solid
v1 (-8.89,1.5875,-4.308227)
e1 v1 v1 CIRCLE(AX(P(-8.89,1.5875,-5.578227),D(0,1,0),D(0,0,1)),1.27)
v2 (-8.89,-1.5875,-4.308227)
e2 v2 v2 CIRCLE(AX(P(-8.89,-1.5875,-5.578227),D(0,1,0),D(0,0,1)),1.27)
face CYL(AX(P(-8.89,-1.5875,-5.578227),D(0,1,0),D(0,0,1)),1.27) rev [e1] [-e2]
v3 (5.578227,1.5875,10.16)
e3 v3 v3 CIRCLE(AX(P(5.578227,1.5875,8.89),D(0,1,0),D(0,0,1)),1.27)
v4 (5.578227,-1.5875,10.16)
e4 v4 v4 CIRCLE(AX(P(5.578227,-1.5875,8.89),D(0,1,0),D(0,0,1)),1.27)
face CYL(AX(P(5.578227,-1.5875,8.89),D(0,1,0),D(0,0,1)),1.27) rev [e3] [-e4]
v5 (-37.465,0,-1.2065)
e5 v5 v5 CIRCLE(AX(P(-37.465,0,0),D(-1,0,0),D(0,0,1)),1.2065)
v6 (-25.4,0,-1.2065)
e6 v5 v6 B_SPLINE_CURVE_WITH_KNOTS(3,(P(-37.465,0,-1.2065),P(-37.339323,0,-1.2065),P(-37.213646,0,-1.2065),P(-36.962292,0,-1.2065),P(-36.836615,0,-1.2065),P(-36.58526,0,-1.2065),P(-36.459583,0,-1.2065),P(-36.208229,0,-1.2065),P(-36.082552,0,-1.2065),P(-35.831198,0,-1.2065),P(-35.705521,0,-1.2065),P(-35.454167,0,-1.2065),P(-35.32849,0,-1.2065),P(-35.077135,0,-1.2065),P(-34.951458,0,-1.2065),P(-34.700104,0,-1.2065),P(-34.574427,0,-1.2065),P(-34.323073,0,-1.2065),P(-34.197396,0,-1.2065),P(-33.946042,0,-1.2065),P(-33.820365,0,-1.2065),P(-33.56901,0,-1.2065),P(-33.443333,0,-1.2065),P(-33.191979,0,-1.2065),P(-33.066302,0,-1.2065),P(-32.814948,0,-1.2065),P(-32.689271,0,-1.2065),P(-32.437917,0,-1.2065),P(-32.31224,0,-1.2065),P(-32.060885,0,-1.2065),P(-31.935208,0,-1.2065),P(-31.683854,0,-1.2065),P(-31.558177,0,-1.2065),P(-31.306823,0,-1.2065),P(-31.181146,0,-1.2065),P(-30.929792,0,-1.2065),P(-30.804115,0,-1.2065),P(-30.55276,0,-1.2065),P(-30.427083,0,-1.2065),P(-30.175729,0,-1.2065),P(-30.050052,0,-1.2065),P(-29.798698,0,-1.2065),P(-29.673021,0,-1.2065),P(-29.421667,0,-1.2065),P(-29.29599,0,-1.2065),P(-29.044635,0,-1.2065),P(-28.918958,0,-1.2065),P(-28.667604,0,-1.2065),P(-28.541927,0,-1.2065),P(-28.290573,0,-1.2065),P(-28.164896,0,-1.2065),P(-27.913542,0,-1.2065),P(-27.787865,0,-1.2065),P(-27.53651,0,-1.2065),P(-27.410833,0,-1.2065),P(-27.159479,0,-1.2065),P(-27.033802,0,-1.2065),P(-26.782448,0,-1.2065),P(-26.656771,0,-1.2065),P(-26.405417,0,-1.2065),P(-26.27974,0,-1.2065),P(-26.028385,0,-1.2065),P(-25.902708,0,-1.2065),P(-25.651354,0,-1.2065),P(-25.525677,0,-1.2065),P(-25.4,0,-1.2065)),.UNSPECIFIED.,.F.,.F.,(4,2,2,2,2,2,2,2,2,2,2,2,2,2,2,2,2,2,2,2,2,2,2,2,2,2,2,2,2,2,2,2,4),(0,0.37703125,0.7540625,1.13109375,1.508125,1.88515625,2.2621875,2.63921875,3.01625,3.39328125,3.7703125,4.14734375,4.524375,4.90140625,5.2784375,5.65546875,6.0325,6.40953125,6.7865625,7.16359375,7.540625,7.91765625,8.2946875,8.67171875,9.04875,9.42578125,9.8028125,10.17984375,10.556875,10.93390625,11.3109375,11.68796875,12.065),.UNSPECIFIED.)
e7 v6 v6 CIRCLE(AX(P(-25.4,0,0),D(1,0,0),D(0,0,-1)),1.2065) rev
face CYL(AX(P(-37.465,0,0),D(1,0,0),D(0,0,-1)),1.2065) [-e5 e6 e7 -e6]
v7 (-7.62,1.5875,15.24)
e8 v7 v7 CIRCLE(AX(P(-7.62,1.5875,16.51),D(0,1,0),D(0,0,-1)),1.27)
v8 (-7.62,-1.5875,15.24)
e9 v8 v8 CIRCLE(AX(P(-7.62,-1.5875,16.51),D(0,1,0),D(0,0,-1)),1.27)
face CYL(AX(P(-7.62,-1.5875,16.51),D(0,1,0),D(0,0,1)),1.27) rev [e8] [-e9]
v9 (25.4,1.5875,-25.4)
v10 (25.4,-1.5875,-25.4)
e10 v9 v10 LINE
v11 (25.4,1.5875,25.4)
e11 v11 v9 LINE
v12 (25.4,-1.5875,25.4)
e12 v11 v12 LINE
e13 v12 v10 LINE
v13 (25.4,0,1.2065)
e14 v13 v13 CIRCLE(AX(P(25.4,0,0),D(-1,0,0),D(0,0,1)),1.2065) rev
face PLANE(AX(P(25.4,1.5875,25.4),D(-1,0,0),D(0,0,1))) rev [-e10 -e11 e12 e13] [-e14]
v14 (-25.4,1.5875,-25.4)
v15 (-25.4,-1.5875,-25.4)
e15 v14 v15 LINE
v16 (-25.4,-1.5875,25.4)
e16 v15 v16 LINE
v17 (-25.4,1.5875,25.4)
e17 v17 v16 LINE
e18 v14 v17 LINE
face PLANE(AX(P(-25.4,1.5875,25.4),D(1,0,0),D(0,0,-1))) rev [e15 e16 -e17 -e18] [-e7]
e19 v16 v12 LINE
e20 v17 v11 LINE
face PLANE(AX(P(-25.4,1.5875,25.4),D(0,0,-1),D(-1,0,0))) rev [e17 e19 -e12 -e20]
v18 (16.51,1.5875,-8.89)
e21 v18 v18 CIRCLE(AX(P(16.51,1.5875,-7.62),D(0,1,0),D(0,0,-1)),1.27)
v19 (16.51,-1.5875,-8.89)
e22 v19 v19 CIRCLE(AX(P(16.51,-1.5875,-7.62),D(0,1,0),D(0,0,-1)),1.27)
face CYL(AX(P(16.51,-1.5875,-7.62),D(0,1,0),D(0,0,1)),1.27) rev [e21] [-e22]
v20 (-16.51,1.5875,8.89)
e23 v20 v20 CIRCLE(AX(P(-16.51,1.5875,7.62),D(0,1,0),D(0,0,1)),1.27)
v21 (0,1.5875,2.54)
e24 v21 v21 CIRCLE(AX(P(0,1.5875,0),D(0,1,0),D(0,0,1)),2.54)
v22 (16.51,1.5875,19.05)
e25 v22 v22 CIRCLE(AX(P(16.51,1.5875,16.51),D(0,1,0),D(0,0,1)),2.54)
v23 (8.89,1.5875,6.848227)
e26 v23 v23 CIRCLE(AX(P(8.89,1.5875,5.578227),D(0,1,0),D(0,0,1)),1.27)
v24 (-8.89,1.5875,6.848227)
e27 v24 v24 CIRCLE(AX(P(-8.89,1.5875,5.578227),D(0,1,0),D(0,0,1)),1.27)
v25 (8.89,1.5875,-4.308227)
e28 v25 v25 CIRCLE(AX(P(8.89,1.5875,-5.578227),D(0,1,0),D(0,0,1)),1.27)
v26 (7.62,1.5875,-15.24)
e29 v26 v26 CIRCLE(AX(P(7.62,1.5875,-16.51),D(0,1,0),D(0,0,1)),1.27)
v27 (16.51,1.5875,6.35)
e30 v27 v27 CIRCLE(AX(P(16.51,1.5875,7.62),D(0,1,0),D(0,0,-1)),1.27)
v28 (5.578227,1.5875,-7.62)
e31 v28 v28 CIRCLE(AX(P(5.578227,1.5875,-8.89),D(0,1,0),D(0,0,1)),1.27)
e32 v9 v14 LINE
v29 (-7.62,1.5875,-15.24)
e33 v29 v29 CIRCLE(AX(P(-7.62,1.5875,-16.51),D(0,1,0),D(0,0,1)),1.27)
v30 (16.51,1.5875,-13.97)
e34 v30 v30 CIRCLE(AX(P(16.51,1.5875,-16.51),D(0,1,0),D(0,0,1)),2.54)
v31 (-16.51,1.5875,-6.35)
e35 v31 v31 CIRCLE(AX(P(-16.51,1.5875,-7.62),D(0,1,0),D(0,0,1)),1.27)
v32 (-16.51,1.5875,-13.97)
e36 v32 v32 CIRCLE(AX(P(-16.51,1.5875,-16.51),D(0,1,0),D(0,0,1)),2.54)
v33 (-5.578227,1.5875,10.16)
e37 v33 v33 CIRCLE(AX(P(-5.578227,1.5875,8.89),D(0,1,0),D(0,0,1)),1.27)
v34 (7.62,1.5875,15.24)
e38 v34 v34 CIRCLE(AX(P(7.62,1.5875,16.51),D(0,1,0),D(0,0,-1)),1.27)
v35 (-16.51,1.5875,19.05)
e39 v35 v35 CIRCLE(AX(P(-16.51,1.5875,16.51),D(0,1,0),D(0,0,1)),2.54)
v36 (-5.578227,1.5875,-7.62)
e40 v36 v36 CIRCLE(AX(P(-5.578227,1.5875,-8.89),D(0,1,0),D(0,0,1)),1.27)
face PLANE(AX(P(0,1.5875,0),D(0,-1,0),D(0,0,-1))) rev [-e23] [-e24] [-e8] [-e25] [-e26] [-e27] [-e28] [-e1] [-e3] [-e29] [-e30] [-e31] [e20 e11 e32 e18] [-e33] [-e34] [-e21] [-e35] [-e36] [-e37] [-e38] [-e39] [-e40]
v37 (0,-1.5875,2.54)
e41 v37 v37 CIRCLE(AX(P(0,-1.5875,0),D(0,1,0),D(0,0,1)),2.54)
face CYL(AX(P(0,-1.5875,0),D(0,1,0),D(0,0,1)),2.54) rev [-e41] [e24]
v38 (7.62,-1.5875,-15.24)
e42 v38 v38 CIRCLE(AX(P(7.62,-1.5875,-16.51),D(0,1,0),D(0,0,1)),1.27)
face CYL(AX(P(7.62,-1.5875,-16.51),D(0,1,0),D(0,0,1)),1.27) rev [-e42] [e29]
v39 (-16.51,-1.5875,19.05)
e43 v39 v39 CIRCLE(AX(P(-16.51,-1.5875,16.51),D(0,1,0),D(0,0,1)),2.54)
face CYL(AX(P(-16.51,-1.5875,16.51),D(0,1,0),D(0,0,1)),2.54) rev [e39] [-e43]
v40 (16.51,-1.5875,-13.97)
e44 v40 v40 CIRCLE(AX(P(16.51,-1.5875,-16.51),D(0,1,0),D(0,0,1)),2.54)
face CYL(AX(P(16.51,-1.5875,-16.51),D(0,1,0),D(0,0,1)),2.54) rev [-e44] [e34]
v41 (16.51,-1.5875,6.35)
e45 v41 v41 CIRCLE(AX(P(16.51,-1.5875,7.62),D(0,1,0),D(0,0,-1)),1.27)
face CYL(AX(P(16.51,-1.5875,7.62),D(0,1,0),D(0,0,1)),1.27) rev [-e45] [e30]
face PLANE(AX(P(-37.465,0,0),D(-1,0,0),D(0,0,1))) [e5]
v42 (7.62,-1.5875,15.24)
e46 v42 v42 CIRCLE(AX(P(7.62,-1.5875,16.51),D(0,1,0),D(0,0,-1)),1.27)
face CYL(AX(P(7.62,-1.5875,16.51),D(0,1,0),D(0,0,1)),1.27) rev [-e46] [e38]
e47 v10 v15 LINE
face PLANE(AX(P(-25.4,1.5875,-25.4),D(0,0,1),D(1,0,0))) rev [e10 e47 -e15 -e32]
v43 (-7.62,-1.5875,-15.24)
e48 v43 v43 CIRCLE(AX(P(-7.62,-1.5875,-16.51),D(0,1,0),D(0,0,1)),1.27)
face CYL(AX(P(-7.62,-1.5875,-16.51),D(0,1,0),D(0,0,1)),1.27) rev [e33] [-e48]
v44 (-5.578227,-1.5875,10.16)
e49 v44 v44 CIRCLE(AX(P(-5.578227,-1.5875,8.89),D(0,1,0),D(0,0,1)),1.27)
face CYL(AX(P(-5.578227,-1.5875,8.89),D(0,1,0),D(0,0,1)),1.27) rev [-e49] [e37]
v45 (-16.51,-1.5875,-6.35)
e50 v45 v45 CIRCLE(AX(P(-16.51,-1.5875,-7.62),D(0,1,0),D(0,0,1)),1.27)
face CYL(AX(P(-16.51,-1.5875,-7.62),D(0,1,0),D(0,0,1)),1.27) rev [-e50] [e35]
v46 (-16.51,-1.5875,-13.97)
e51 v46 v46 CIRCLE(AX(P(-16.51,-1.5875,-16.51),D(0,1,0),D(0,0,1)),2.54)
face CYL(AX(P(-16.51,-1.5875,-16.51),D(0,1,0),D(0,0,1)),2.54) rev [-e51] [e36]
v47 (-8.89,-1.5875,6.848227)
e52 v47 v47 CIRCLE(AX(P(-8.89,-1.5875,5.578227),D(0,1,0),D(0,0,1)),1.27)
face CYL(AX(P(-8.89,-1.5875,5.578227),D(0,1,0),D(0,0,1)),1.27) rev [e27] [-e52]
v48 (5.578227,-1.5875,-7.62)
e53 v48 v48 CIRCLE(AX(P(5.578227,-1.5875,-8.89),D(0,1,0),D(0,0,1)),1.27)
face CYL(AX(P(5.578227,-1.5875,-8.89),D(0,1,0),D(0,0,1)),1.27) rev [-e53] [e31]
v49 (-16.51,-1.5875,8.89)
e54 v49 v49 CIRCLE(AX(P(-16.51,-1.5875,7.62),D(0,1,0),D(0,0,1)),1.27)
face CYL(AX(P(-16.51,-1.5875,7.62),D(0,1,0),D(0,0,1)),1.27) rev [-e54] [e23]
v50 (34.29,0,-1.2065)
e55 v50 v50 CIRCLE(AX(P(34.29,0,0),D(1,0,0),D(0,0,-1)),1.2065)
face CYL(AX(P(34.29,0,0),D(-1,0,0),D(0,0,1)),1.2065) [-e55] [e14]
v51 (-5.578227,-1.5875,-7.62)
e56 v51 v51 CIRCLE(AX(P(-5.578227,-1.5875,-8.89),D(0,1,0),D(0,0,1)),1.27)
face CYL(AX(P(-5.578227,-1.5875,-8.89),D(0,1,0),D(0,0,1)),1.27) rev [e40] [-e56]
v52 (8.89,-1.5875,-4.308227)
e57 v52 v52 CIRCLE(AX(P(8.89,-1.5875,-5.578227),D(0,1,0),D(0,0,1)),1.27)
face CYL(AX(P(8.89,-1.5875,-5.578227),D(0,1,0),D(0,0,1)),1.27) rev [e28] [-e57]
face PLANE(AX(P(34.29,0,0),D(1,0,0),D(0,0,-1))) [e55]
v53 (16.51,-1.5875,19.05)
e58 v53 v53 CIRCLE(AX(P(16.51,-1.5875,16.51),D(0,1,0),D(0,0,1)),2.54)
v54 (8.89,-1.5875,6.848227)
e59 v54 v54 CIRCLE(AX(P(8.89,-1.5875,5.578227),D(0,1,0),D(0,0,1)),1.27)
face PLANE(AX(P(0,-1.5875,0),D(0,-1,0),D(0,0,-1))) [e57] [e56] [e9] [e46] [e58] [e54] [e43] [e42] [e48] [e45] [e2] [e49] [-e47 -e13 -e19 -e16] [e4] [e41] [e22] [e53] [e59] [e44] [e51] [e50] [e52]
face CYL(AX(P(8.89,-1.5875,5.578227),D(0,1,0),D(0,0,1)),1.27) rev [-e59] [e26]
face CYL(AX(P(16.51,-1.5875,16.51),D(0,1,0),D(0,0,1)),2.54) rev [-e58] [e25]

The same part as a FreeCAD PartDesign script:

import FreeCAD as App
import Part
import Sketcher
from FreeCAD import Vector
Q = App.Units.Quantity


def add_polygon(sketch, points):
    """Adds a closed chain of lines whose ends are joined by coincident constraints."""
    first, n = sketch.GeometryCount, len(points)
    for a, b in zip(points, points[1:] + points[:1]):
        sketch.addGeometry(Part.LineSegment(App.Vector(*a, 0), App.Vector(*b, 0)), False)
    for i in range(n):
        sketch.addConstraint(Sketcher.Constraint("Coincident", first + i, 2, first + (i + 1) % n, 1))

doc = App.newDocument("Part")
body = doc.addObject("PartDesign::Body", "Body")

# Sketch on XZ plane
sketch1 = body.newObject("Sketcher::SketchObject", "Sketch")
sketch1.AttachmentSupport = (doc.getObject("XZ_Plane"), [""])
sketch1.MapMode = "FlatFace"
add_polygon(sketch1, [(-25, -25), (-25, 25), (25, 25), (25, -25)])  # lines 0-3
sketch1.addConstraint(Sketcher.Constraint("Vertical", 0))
sketch1.addConstraint(Sketcher.Constraint("Horizontal", 1))
sketch1.addConstraint(Sketcher.Constraint("Vertical", 2))
sketch1.addConstraint(Sketcher.Constraint("Horizontal", 3))
sketch1.addConstraint(Sketcher.Constraint("Symmetric", 0, 2, 2, 2, -1, 1))
sketch1.addConstraint(Sketcher.Constraint("Equal", 3, 0))
sketch1.addConstraint(Sketcher.Constraint("DistanceX", 1, 1, 1, 2, Q("2 in")))
pad1 = body.newObject("PartDesign::Pad", "Pad")
pad1.Profile = sketch1
pad1.Length = Q("0.125 in")
pad1.Midplane = True

# Sketch on YZ plane
sketch2 = body.newObject("Sketcher::SketchObject", "Sketch001")
sketch2.AttachmentSupport = (doc.getObject("YZ_Plane"), [""])
sketch2.MapMode = "FlatFace"
sketch2.AttachmentOffset = App.Placement(Vector(0, 0, 1 * 25.4), App.Rotation())
sketch2.addGeometry(Part.Circle(Vector(0, 0, 0), Vector(0, 0, 1), 1.2), False)
sketch2.addConstraint(Sketcher.Constraint("Coincident", 0, 3, -1, 1))
sketch2.addConstraint(Sketcher.Constraint("Diameter", 0, Q("0.095 in")))
pad2 = body.newObject("PartDesign::Pad", "Pad001")
pad2.Profile = sketch2
pad2.Length = Q("0.35 in")

# Sketch on XZ plane
sketch3 = body.newObject("Sketcher::SketchObject", "Sketch002")
sketch3.AttachmentSupport = (doc.getObject("XZ_Plane"), [""])
sketch3.MapMode = "FlatFace"
sketch3.AttachmentOffset = App.Placement(Vector(0, 0, -0.0625 * 25.4), App.Rotation())
sketch3.addGeometry(Part.Circle(Vector(0, 0, 0), Vector(0, 0, 1), 2.5), False)
sketch3.addGeometry(Part.Circle(Vector(-16.5, -16.5, 0), Vector(0, 0, 1), 2.5), False)
sketch3.addGeometry(Part.Circle(Vector(16.5, -16.5, 0), Vector(0, 0, 1), 2.5), False)
sketch3.addGeometry(Part.Circle(Vector(16.5, 16.5, 0), Vector(0, 0, 1), 2.5), False)
sketch3.addGeometry(Part.Circle(Vector(-16.5, 16.5, 0), Vector(0, 0, 1), 2.5), False)
sketch3.addGeometry(Part.Circle(Vector(-16.5, -7.6, 0), Vector(0, 0, 1), 1.3), False)
sketch3.addGeometry(Part.Circle(Vector(-7.6, -16.5, 0), Vector(0, 0, 1), 1.3), False)
sketch3.addGeometry(Part.Circle(Vector(7.6, -16.5, 0), Vector(0, 0, 1), 1.3), False)
sketch3.addGeometry(Part.Circle(Vector(-16.5, 7.6, 0), Vector(0, 0, 1), 1.3), False)
sketch3.addGeometry(Part.Circle(Vector(7.6, 16.5, 0), Vector(0, 0, 1), 1.3), False)
sketch3.addGeometry(Part.Circle(Vector(-7.6, 16.5, 0), Vector(0, 0, 1), 1.3), False)
sketch3.addGeometry(Part.Circle(Vector(16.5, 7.6, 0), Vector(0, 0, 1), 1.3), False)
sketch3.addGeometry(Part.Circle(Vector(16.5, -7.6, 0), Vector(0, 0, 1), 1.3), False)
sketch3.addGeometry(Part.Circle(Vector(5.6, -8.9, 0), Vector(0, 0, 1), 1.3), False)
sketch3.addGeometry(Part.Circle(Vector(-5.6, -8.9, 0), Vector(0, 0, 1), 1.3), False)
sketch3.addGeometry(Part.Circle(Vector(8.9, 5.6, 0), Vector(0, 0, 1), 1.3), False)
sketch3.addGeometry(Part.Circle(Vector(8.9, -5.6, 0), Vector(0, 0, 1), 1.3), False)
sketch3.addGeometry(Part.Circle(Vector(-5.6, 8.9, 0), Vector(0, 0, 1), 1.3), False)
sketch3.addGeometry(Part.Circle(Vector(5.6, 8.9, 0), Vector(0, 0, 1), 1.3), False)
sketch3.addGeometry(Part.Circle(Vector(-8.9, -5.6, 0), Vector(0, 0, 1), 1.3), False)
sketch3.addGeometry(Part.Circle(Vector(-8.9, 5.6, 0), Vector(0, 0, 1), 1.3), False)
sketch3.addConstraint(Sketcher.Constraint("Coincident", 0, 3, -1, 1))
sketch3.addConstraint(Sketcher.Constraint("Equal", 0, 1))
sketch3.addConstraint(Sketcher.Constraint("Equal", 1, 2))
sketch3.addConstraint(Sketcher.Constraint("Equal", 2, 3))
sketch3.addConstraint(Sketcher.Constraint("Equal", 3, 4))
sketch3.addConstraint(Sketcher.Constraint("Equal", 5, 6))
sketch3.addConstraint(Sketcher.Constraint("Equal", 6, 7))
sketch3.addConstraint(Sketcher.Constraint("Equal", 7, 8))
sketch3.addConstraint(Sketcher.Constraint("Equal", 8, 9))
sketch3.addConstraint(Sketcher.Constraint("Equal", 9, 10))
sketch3.addConstraint(Sketcher.Constraint("Equal", 10, 11))
sketch3.addConstraint(Sketcher.Constraint("Equal", 11, 12))
sketch3.addConstraint(Sketcher.Constraint("Equal", 12, 13))
sketch3.addConstraint(Sketcher.Constraint("Equal", 13, 14))
sketch3.addConstraint(Sketcher.Constraint("Equal", 14, 15))
sketch3.addConstraint(Sketcher.Constraint("Equal", 15, 16))
sketch3.addConstraint(Sketcher.Constraint("Equal", 16, 17))
sketch3.addConstraint(Sketcher.Constraint("Equal", 17, 18))
sketch3.addConstraint(Sketcher.Constraint("Equal", 18, 19))
sketch3.addConstraint(Sketcher.Constraint("Equal", 19, 20))
sketch3.addConstraint(Sketcher.Constraint("Symmetric", 1, 3, 3, 3, -1, 1))
sketch3.addConstraint(Sketcher.Constraint("Symmetric", 2, 3, 4, 3, -1, 1))
sketch3.addConstraint(Sketcher.Constraint("Symmetric", 6, 3, 9, 3, -1, 1))
sketch3.addConstraint(Sketcher.Constraint("Symmetric", 7, 3, 10, 3, -1, 1))
sketch3.addConstraint(Sketcher.Constraint("Symmetric", 5, 3, 11, 3, -1, 1))
sketch3.addConstraint(Sketcher.Constraint("Symmetric", 8, 3, 12, 3, -1, 1))
sketch3.addConstraint(Sketcher.Constraint("Symmetric", 13, 3, 17, 3, -1, 1))
sketch3.addConstraint(Sketcher.Constraint("Symmetric", 14, 3, 18, 3, -1, 1))
sketch3.addConstraint(Sketcher.Constraint("Symmetric", 15, 3, 19, 3, -1, 1))
sketch3.addConstraint(Sketcher.Constraint("Symmetric", 16, 3, 20, 3, -1, 1))
sketch3.addConstraint(Sketcher.Constraint("Symmetric", 1, 3, 2, 3, -2))
sketch3.addConstraint(Sketcher.Constraint("Symmetric", 6, 3, 7, 3, -2))
sketch3.addConstraint(Sketcher.Constraint("Symmetric", 8, 3, 11, 3, -2))
sketch3.addConstraint(Sketcher.Constraint("Symmetric", 13, 3, 14, 3, -2))
sketch3.addConstraint(Sketcher.Constraint("Symmetric", 16, 3, 19, 3, -2))
sketch3.addConstraint(Sketcher.Constraint("Horizontal", 2, 3, 6, 3))
sketch3.addConstraint(Sketcher.Constraint("Vertical", 4, 3, 5, 3))
sketch3.addConstraint(Sketcher.Constraint("Diameter", 0, Q("0.2 in")))
sketch3.addConstraint(Sketcher.Constraint("Diameter", 5, Q("0.1 in")))
sketch3.addConstraint(Sketcher.Constraint("DistanceY", 5, 3, -1, 1, Q("0.3 in")))
sketch3.addConstraint(Sketcher.Constraint("DistanceX", 6, 3, -1, 1, Q("0.3 in")))
sketch3.addConstraint(Sketcher.Constraint("DistanceX", 1, 3, 2, 3, Q("1.3 in")))
sketch3.addConstraint(Sketcher.Constraint("DistanceY", 2, 3, 3, 3, Q("1.3 in")))
sketch3.addConstraint(Sketcher.Constraint("DistanceY", 7, 3, 13, 3, Q("0.3 in")))
sketch3.addConstraint(Sketcher.Constraint("DistanceX", 15, 3, 11, 3, Q("0.3 in")))
sketch3.addConstraint(Sketcher.Constraint("DistanceX", -1, 1, 13, 3, 5.578227))
sketch3.addConstraint(Sketcher.Constraint("DistanceY", -1, 1, 15, 3, 5.578227))
pocket1 = body.newObject("PartDesign::Pocket", "Pocket")
pocket1.Profile = sketch3
pocket1.Type = "ThroughAll"
pocket1.Reversed = True

# Sketch on YZ plane
sketch4 = body.newObject("Sketcher::SketchObject", "Sketch003")
sketch4.AttachmentSupport = (doc.getObject("YZ_Plane"), [""])
sketch4.MapMode = "FlatFace"
sketch4.AttachmentOffset = App.Placement(Vector(0, 0, -1.475 * 25.4), App.Rotation())
sketch4.addGeometry(Part.Circle(Vector(0, 0, 0), Vector(0, 0, 1), 1.2), False)
sketch4.addConstraint(Sketcher.Constraint("Coincident", 0, 3, -1, 1))
sketch4.addConstraint(Sketcher.Constraint("Diameter", 0, Q("0.095 in")))
pad3 = body.newObject("PartDesign::Pad", "Pad002")
pad3.Profile = sketch4
pad3.Length = Q("0.475 in")

doc.recompute()
